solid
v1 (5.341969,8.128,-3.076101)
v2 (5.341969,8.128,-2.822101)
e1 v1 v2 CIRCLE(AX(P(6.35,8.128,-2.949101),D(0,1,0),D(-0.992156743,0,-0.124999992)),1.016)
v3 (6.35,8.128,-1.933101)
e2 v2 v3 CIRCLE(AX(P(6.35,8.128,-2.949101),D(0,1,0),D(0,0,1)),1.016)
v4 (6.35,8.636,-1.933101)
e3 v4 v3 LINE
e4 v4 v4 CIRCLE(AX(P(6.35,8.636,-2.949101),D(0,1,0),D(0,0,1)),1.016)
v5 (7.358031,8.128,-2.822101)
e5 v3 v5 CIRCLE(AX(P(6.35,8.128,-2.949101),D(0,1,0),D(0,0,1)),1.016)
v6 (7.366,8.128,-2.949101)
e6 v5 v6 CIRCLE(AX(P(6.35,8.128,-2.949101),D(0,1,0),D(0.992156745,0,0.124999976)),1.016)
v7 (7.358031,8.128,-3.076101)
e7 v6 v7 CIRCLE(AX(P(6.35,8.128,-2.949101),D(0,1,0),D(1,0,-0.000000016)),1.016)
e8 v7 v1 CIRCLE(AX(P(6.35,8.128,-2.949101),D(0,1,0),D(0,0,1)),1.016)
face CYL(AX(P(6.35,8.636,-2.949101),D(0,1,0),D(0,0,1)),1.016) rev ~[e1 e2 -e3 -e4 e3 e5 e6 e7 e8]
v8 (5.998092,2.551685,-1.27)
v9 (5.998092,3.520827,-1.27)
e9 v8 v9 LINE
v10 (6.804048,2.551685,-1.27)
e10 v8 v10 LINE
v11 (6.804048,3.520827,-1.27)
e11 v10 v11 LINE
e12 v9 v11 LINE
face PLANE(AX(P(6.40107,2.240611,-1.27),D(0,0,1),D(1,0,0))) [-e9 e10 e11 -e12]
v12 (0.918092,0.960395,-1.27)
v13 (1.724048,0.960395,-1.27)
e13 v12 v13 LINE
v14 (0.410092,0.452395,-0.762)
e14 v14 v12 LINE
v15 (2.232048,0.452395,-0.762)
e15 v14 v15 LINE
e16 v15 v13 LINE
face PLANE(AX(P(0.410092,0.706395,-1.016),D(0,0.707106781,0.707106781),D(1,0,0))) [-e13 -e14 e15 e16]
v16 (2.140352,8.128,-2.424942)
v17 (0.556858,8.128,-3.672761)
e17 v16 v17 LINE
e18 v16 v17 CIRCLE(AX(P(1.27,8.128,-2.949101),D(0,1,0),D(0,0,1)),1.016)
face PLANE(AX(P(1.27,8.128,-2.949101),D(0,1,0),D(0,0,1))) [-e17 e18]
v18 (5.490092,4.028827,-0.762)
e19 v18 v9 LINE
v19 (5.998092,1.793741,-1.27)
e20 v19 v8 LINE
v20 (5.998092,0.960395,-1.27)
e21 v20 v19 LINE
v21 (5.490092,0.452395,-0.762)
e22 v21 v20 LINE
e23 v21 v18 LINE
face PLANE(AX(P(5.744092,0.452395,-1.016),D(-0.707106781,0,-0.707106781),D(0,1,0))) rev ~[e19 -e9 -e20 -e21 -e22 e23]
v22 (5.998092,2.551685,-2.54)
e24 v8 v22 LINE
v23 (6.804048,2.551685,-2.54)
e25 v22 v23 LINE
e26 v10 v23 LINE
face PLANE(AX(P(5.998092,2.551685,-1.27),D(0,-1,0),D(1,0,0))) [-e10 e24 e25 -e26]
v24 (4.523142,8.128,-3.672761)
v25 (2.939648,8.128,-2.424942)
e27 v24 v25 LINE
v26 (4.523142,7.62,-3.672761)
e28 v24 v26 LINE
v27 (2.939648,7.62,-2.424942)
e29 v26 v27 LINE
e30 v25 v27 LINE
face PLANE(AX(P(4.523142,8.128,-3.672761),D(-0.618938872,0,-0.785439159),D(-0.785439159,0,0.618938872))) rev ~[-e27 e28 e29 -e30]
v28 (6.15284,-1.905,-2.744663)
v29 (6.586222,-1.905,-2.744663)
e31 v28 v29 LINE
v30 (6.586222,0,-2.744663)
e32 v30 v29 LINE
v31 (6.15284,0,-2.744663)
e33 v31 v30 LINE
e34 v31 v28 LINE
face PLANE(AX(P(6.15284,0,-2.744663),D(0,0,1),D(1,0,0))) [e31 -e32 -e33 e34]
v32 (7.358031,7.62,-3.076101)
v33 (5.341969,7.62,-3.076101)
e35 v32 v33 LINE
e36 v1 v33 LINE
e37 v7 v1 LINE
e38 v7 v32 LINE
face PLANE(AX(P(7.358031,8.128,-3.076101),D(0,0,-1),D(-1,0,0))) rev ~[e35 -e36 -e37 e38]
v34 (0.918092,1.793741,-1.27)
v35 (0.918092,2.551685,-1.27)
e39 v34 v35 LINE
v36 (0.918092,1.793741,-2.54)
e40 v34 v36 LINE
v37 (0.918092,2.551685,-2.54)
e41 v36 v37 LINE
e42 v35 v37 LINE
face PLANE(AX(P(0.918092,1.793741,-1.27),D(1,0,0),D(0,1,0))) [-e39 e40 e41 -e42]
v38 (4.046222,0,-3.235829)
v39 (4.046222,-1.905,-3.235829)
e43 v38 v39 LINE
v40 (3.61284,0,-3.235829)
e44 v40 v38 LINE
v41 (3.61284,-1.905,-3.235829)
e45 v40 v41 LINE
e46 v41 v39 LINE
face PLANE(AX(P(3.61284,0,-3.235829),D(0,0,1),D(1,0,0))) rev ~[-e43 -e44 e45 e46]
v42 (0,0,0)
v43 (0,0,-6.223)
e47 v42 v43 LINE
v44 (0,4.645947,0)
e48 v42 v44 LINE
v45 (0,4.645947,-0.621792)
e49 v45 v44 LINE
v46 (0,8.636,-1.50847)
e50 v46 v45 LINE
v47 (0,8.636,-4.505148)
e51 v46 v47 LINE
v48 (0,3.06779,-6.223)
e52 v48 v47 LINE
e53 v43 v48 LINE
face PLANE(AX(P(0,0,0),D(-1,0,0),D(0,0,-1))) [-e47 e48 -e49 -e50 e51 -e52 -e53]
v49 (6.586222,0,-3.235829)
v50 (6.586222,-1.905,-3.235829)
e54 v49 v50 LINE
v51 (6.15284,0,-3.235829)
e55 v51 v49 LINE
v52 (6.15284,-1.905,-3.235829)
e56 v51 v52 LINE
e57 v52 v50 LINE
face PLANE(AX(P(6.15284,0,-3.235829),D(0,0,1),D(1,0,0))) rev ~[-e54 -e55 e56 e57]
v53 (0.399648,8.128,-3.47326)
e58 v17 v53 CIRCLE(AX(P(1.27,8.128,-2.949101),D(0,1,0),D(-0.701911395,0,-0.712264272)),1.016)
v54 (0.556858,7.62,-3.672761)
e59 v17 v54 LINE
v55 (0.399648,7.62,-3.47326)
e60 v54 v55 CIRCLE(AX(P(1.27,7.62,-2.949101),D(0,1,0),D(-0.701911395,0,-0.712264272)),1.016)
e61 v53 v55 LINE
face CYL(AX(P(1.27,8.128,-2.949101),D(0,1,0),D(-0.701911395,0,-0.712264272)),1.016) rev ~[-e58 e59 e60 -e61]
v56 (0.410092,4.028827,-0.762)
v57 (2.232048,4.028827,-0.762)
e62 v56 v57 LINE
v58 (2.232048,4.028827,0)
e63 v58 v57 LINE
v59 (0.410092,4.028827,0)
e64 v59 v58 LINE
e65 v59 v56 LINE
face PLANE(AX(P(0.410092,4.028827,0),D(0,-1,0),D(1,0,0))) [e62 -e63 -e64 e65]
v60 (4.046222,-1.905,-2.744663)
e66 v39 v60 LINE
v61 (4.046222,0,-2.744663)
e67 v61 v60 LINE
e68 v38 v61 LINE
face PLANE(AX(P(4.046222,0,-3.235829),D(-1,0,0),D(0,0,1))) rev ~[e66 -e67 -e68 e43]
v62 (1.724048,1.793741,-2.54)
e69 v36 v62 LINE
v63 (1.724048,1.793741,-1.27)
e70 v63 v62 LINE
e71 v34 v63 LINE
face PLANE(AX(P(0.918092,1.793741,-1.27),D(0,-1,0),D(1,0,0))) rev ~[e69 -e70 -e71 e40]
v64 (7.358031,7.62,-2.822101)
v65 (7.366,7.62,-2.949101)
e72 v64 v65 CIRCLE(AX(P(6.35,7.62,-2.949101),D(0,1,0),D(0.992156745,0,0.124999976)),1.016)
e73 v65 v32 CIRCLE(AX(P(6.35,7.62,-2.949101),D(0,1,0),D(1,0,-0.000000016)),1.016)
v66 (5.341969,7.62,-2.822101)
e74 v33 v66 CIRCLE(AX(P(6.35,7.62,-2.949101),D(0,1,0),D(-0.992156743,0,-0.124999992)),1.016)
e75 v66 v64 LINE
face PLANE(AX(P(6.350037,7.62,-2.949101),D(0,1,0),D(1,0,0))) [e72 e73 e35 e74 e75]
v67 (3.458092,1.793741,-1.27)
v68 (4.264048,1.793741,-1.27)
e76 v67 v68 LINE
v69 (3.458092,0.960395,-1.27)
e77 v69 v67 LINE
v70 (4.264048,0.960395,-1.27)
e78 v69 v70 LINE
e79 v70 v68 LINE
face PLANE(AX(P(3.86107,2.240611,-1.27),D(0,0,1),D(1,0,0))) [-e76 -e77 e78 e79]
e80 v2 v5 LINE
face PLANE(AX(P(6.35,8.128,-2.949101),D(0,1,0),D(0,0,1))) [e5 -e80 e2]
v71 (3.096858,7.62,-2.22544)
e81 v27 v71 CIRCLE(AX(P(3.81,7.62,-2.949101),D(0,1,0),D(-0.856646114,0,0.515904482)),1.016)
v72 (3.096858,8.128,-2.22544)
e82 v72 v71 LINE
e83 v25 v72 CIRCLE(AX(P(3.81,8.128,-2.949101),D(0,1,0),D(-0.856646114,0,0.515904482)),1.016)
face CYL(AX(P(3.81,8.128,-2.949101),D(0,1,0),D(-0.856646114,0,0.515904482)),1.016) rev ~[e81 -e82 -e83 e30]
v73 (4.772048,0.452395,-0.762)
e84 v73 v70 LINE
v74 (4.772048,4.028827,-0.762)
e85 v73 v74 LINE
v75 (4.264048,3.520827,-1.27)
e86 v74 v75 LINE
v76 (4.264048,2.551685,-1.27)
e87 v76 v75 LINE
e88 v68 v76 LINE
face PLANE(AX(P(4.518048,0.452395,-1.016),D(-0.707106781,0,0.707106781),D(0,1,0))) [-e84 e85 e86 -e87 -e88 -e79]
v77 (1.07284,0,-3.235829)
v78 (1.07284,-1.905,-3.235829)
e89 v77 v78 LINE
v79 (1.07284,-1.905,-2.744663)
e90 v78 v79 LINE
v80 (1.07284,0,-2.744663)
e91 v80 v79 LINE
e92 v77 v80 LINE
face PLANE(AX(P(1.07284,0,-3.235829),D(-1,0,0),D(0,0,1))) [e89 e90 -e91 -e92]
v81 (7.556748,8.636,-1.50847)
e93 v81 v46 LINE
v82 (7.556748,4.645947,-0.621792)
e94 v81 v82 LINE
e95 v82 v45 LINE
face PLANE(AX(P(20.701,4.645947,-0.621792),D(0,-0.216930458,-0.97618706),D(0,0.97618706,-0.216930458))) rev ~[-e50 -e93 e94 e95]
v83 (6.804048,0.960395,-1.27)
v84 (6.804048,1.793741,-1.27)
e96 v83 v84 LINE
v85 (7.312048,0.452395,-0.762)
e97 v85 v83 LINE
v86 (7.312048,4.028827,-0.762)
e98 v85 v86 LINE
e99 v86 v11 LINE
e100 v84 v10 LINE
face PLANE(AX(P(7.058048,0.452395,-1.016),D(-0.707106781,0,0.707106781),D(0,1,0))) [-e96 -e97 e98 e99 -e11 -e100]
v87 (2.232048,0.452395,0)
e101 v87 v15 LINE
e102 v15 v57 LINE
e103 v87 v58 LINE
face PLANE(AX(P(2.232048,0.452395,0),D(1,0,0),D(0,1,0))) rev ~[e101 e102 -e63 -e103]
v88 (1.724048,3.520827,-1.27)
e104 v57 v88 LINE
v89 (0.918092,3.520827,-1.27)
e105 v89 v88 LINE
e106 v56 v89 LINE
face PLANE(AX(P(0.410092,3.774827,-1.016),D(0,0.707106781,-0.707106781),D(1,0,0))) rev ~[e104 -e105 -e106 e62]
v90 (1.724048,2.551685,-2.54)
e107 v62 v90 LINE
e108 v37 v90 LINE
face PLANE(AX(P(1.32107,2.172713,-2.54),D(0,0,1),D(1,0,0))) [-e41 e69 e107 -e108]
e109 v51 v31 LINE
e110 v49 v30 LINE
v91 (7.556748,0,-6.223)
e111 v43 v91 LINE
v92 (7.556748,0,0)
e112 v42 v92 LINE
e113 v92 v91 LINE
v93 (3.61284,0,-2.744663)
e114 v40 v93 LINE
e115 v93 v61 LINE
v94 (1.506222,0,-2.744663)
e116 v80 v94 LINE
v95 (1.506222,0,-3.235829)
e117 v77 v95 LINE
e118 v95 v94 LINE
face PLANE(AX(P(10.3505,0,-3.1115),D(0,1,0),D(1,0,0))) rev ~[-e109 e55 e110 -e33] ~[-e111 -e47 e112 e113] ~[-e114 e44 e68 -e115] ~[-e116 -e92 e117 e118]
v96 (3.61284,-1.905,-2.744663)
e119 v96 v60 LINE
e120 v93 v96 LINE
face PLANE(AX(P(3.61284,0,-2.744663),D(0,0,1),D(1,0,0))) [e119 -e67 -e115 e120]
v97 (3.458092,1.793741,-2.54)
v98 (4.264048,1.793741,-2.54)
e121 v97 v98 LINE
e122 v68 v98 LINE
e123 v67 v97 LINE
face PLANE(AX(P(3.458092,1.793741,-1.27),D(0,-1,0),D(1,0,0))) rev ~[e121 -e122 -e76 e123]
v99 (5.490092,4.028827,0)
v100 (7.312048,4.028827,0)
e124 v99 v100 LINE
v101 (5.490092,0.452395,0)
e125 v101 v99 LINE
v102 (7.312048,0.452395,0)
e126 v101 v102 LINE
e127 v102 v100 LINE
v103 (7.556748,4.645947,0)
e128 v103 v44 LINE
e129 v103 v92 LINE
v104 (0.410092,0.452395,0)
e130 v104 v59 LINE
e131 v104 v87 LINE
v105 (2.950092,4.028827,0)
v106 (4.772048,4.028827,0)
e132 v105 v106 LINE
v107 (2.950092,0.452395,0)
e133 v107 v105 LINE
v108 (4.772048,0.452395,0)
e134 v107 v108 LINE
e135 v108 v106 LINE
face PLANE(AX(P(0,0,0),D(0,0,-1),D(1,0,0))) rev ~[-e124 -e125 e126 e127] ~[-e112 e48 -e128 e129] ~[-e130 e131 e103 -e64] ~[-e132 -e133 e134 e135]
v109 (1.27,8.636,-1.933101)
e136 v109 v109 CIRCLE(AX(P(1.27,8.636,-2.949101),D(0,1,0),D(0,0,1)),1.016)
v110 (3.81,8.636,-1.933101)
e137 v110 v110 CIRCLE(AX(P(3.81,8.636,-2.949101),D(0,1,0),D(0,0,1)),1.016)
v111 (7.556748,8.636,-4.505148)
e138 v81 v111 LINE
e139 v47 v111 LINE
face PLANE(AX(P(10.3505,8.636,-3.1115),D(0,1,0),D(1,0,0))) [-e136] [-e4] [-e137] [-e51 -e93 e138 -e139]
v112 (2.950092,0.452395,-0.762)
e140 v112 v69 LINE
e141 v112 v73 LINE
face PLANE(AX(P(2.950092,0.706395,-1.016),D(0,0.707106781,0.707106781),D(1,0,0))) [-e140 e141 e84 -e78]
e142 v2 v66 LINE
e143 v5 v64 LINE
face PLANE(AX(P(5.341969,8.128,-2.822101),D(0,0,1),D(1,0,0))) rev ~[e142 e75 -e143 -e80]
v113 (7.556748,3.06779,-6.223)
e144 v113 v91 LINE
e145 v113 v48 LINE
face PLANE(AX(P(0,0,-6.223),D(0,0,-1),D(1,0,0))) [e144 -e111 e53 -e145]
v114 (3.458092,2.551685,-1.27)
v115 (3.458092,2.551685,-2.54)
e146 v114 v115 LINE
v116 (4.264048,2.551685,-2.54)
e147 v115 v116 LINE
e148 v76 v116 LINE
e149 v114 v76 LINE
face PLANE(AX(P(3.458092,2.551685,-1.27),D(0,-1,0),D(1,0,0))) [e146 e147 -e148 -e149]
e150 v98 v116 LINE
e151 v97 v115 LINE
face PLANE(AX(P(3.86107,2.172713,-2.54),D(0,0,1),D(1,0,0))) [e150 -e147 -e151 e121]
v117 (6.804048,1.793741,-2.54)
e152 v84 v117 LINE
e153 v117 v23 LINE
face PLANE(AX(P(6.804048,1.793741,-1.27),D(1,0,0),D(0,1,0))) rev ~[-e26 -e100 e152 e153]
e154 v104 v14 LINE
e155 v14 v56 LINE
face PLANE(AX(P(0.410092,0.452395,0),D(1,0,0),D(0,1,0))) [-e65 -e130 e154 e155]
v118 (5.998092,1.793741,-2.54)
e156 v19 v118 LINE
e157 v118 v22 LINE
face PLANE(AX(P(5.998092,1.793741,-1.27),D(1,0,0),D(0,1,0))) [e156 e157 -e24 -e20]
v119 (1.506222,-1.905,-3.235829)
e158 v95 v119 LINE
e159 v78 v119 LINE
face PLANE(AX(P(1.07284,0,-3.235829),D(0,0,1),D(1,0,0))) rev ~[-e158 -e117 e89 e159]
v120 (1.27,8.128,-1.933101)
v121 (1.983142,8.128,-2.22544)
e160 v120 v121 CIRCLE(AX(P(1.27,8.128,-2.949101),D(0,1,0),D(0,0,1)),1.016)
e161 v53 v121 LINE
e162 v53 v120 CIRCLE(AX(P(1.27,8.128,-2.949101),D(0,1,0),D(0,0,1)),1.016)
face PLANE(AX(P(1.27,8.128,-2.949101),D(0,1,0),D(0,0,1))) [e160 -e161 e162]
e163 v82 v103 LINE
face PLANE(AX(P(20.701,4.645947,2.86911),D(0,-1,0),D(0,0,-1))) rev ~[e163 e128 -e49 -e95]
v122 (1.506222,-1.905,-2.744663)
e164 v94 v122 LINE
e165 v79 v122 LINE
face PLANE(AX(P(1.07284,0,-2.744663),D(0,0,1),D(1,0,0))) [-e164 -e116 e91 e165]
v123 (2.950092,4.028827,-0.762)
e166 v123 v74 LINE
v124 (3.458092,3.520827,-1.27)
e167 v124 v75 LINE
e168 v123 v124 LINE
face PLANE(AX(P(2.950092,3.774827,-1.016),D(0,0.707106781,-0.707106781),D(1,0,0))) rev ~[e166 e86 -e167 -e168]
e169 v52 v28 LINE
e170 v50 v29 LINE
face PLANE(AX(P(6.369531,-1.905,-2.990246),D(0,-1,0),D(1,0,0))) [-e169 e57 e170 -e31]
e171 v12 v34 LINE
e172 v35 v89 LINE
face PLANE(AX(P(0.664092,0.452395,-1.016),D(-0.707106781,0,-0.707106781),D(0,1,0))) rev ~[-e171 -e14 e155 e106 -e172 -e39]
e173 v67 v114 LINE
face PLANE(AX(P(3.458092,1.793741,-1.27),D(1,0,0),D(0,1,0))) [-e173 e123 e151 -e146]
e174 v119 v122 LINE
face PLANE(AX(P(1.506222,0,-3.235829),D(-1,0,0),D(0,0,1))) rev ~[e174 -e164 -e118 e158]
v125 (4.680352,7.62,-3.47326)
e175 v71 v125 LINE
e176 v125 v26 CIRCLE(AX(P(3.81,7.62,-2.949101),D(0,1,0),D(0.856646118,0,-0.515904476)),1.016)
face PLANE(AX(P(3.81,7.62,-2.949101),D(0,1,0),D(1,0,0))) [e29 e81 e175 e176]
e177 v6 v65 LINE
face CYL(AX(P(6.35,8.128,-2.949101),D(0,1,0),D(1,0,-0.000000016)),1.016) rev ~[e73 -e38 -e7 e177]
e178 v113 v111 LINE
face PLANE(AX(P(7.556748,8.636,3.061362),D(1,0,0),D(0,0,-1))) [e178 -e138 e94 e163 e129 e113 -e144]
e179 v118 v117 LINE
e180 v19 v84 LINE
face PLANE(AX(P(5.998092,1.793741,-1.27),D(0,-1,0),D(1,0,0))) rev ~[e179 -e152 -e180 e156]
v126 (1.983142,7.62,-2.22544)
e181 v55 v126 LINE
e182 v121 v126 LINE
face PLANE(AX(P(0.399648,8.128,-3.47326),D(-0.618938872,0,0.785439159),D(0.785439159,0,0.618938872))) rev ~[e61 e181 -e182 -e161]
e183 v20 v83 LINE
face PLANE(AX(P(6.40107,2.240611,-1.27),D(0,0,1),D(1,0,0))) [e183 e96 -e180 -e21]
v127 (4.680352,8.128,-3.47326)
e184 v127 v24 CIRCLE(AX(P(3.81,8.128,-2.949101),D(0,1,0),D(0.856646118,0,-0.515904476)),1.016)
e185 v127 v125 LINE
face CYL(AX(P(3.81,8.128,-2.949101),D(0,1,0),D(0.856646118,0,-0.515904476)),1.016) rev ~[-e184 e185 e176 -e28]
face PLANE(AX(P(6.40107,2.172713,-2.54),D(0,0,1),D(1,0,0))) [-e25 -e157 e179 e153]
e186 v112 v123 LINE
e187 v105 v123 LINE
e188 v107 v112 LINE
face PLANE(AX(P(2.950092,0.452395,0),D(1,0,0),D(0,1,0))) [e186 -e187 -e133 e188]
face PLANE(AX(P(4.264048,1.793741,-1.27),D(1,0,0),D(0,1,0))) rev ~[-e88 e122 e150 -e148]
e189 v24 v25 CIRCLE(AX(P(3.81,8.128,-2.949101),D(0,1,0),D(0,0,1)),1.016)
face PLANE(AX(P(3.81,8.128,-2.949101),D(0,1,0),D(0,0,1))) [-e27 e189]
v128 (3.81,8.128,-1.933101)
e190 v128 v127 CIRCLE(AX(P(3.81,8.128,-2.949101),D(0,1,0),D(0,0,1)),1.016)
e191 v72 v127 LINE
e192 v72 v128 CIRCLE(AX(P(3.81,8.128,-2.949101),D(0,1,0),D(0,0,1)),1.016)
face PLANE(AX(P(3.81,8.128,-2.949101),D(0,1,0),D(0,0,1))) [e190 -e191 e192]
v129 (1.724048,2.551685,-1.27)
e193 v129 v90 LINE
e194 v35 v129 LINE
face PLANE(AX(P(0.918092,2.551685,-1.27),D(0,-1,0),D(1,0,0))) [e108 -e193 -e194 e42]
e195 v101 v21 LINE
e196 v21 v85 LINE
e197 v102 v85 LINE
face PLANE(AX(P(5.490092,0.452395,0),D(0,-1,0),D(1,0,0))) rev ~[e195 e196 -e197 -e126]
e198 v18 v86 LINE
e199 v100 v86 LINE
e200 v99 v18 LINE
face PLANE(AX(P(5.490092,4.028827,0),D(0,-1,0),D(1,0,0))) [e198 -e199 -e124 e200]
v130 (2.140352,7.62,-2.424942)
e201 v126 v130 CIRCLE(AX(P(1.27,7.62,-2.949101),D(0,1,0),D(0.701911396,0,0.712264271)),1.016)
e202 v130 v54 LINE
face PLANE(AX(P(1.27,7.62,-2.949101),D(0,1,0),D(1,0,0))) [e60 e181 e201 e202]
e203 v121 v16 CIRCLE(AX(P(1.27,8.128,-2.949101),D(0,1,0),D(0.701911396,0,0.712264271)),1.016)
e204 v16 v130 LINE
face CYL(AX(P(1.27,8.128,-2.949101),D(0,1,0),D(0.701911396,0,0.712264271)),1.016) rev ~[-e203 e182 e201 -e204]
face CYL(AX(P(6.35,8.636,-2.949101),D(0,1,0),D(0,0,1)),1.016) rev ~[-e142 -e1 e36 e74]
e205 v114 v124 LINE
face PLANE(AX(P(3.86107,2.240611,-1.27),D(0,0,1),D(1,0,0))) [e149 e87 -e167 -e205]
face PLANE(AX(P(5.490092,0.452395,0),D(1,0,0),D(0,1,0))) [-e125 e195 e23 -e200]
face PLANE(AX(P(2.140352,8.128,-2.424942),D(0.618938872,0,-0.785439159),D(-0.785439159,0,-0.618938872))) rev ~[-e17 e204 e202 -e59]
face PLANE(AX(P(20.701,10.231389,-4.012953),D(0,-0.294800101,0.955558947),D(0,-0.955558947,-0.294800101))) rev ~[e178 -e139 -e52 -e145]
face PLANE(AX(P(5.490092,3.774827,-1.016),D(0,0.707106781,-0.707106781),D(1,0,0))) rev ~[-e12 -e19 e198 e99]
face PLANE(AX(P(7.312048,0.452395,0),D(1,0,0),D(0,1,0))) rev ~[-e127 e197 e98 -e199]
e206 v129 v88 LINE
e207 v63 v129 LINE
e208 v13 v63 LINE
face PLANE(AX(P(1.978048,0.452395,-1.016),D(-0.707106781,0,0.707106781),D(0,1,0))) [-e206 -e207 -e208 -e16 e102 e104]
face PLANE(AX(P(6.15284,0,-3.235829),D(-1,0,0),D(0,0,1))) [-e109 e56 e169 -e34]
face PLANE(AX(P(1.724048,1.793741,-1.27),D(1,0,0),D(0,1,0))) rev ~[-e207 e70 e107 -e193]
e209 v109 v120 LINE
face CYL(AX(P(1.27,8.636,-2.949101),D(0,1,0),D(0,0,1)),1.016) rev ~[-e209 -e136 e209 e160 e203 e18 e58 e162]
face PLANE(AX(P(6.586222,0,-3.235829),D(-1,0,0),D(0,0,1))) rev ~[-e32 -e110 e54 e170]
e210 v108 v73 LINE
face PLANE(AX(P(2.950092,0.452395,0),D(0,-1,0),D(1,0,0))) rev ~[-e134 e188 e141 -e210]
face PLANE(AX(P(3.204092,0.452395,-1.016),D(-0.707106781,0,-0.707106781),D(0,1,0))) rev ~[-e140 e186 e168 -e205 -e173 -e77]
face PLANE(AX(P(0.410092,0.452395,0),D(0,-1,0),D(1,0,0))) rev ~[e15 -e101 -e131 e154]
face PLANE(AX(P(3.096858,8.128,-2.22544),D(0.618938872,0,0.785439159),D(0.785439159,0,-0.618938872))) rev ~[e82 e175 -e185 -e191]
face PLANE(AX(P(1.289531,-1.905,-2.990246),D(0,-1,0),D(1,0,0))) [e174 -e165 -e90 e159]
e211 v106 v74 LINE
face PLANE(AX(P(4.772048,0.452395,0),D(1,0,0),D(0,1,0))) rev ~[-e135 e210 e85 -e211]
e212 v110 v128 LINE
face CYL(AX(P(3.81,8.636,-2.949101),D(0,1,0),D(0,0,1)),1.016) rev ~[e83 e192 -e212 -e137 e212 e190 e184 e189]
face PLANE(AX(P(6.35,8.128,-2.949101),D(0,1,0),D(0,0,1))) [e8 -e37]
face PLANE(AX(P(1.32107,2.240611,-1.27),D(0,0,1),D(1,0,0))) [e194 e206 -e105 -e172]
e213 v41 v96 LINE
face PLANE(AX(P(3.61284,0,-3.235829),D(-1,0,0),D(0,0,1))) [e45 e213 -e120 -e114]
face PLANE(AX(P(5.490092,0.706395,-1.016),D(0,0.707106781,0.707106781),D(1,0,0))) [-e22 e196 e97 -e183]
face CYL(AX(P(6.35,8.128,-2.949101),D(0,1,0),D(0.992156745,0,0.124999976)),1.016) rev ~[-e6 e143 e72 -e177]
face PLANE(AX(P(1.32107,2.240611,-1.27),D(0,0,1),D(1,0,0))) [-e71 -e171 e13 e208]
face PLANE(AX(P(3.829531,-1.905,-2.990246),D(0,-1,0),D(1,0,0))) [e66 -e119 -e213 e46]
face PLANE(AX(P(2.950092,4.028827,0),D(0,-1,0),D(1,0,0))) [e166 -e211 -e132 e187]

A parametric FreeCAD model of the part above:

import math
import FreeCAD as App
import Part
import Sketcher

V = App.Vector
Q = App.Units.Quantity


def edges_at(feature, points):
    """Names of the edges that pass closest to the given points."""
    edges = feature.Shape.Edges
    near = lambda p: min(range(len(edges)), key=lambda i: edges[i].distToShape(Part.Vertex(*p))[0])
    return sorted({f"Edge{near(p) + 1}" for p in points})


def add_polygon(sketch, points):
    """Adds a closed chain of lines whose ends are joined by coincident constraints."""
    first, n = sketch.GeometryCount, len(points)
    for a, b in zip(points, points[1:] + points[:1]):
        sketch.addGeometry(Part.LineSegment(App.Vector(*a, 0), App.Vector(*b, 0)), False)
    for i in range(n):
        sketch.addConstraint(Sketcher.Constraint("Coincident", first + i, 2, first + (i + 1) % n, 1))

doc = App.newDocument("Part")
body = doc.addObject("PartDesign::Body", "Body")

# Sketch on XZ plane
sketch1 = body.newObject("Sketcher::SketchObject", "Sketch")
sketch1.AttachmentSupport = (doc.getObject("XZ_Plane"), [""])
sketch1.MapMode = "FlatFace"
add_polygon(sketch1, [(0, -6), (0, 0), (21, 0), (21, -6)])  # lines 0-3
sketch1.addConstraint([
    Sketcher.Constraint("Vertical", 0),
    Sketcher.Constraint("Horizontal", 1),
    Sketcher.Constraint("Vertical", 2),
    Sketcher.Constraint("Horizontal", 3),
    Sketcher.Constraint("Coincident", 0, 2, -1, 1),
    Sketcher.Constraint("DistanceX", 1, 1, 1, 2, Q("0.815 in")),
    Sketcher.Constraint("DistanceY", 0, 1, 0, 2, Q("0.245 in")),
])
pad1 = body.newObject("PartDesign::Pad", "Pad")
pad1.Profile = sketch1
pad1.Length = Q("0.34 in")
pad1.Reversed = True

# Sketch on YZ plane
sketch2 = body.newObject("Sketcher::SketchObject", "Sketch001")
sketch2.AttachmentSupport = (doc.getObject("YZ_Plane"), [""])
sketch2.MapMode = "FlatFace"
sketch2.AttachmentOffset = App.Placement(V(0, 0, 0.815 * 25.4), App.Rotation())
add_polygon(sketch2, [(4.6, 2.9), (4.6, -0.6), (11.8, -2.2), (11.8, 2.9)])  # lines 0-3
sketch2.addConstraint([
    Sketcher.Constraint("Vertical", 0),
    Sketcher.Constraint("Vertical", 2),
    Sketcher.Constraint("Horizontal", 3),
    Sketcher.Constraint("DistanceY", 0, 2, 0, 1, 3.490902),
    Sketcher.Constraint("DistanceX", 3, 2, 3, 1, 7.181283),
    Sketcher.Constraint("DistanceY", 2, 1, 2, 2, 5.086742),
    Sketcher.Constraint("DistanceY", 0, 2, -1, 1, 0.621792),
    Sketcher.Constraint("DistanceX", -1, 1, 1, 2, 11.82723),
])
pocket1 = body.newObject("PartDesign::Pocket", "Pocket")
pocket1.Profile = sketch2
pocket1.Length = Q("1 in")

# Sketch on YZ plane
sketch3 = body.newObject("Sketcher::SketchObject", "Sketch002")
sketch3.AttachmentSupport = (doc.getObject("YZ_Plane"), [""])
sketch3.MapMode = "FlatFace"
sketch3.AttachmentOffset = App.Placement(V(0, 0, 0.815 * 25.4), App.Rotation())
add_polygon(sketch3, [(10.2, -4), (0.9, -6.9), (0.9, -9.2), (10.2, -9.2)])  # lines 0-3
sketch3.addConstraint([
    Sketcher.Constraint("Vertical", 1),
    Sketcher.Constraint("Horizontal", 2),
    Sketcher.Constraint("Vertical", 3),
    Sketcher.Constraint("DistanceY", 1, 2, 1, 1, 2.294021),
    Sketcher.Constraint("DistanceX", 2, 1, 2, 2, 9.375565),
    Sketcher.Constraint("DistanceY", 3, 1, 3, 2, 5.186483),
    Sketcher.Constraint("DistanceX", -1, 1, 2, 2, 10.231389),
    Sketcher.Constraint("DistanceY", 0, 2, -1, 1, 6.905415),
])
pocket2 = body.newObject("PartDesign::Pocket", "Pocket001")
pocket2.Profile = sketch3
pocket2.Length = Q("1 in")

# Sketch on XZ plane
sketch4 = body.newObject("Sketcher::SketchObject", "Sketch003")
sketch4.AttachmentSupport = (doc.getObject("XZ_Plane"), [""])
sketch4.MapMode = "FlatFace"
sketch4.AttachmentOffset = App.Placement(V(0, 0, -0.34 * 25.4), App.Rotation())
sketch4.addGeometry([
    Part.Circle(V(1.3, -2.9, 0), V(0, 0, 1), 1),  # 0
    Part.Circle(V(3.8, -2.9, 0), V(0, 0, 1), 1),  # 1
    Part.Circle(V(6.3, -2.9, 0), V(0, 0, 1), 1),  # 2
    Part.Circle(V(8.9, -2.9, 0), V(0, 0, 1), 1),  # 3
    Part.Circle(V(11.4, -2.9, 0), V(0, 0, 1), 1),  # 4
    Part.Circle(V(14, -2.9, 0), V(0, 0, 1), 1),  # 5
    Part.Circle(V(16.5, -2.9, 0), V(0, 0, 1), 1),  # 6
    Part.Circle(V(19.1, -2.9, 0), V(0, 0, 1), 1),  # 7
], False)
sketch4.addConstraint([
    Sketcher.Constraint("Equal", 0, 1),
    Sketcher.Constraint("Equal", 1, 2),
    Sketcher.Constraint("Equal", 2, 3),
    Sketcher.Constraint("Equal", 3, 4),
    Sketcher.Constraint("Equal", 4, 5),
    Sketcher.Constraint("Equal", 5, 6),
    Sketcher.Constraint("Equal", 6, 7),
    Sketcher.Constraint("Horizontal", 0, 3, 1, 3),
    Sketcher.Constraint("Horizontal", 1, 3, 2, 3),
    Sketcher.Constraint("Horizontal", 2, 3, 3, 3),
    Sketcher.Constraint("Horizontal", 3, 3, 4, 3),
    Sketcher.Constraint("Horizontal", 4, 3, 5, 3),
    Sketcher.Constraint("Horizontal", 5, 3, 6, 3),
    Sketcher.Constraint("Horizontal", 6, 3, 7, 3),
    Sketcher.Constraint("Diameter", 0, Q("0.08 in")),
    Sketcher.Constraint("DistanceX", 0, 3, 1, 3, Q("0.1 in")),
    Sketcher.Constraint("DistanceX", 1, 3, 2, 3, Q("0.1 in")),
    Sketcher.Constraint("DistanceX", 2, 3, 3, 3, Q("0.1 in")),
    Sketcher.Constraint("DistanceX", 3, 3, 4, 3, Q("0.1 in")),
    Sketcher.Constraint("DistanceX", 4, 3, 5, 3, Q("0.1 in")),
    Sketcher.Constraint("DistanceX", 5, 3, 6, 3, Q("0.1 in")),
    Sketcher.Constraint("DistanceX", 6, 3, 7, 3, Q("0.1 in")),
    Sketcher.Constraint("DistanceX", -1, 1, 0, 3, Q("0.05 in")),
    Sketcher.Constraint("DistanceY", 0, 3, -1, 1, 2.949101),
])
pocket3 = body.newObject("PartDesign::Pocket", "Pocket002")
pocket3.Profile = sketch4
pocket3.Length = Q("0.02 in")
pocket3.Reversed = True

# Sketch on XZ plane
sketch5 = body.newObject("Sketcher::SketchObject", "Sketch004")
sketch5.AttachmentSupport = (doc.getObject("XZ_Plane"), [""])
sketch5.MapMode = "FlatFace"
sketch5.AttachmentOffset = App.Placement(V(0, 0, -0.32 * 25.4), App.Rotation())
sketch5.addGeometry([
    Part.ArcOfCircle(Part.Circle(V(1.27, -2.95, 0), V(0, 0, 1), 1.02), math.radians(-148.94), math.radians(-134.58)),  # 0
    Part.LineSegment(V(0.4, -3.47, 0), V(1.98, -2.23, 0)),  # 1
    Part.ArcOfCircle(Part.Circle(V(1.27, -2.95, 0), V(0, 0, 1), 1.02), math.radians(31.06), math.radians(45.42)),  # 2
    Part.LineSegment(V(2.14, -2.42, 0), V(0.56, -3.67, 0)),  # 3
    Part.ArcOfCircle(Part.Circle(V(3.81, -2.95, 0), V(0, 0, 1), 1.02), math.radians(134.58), math.radians(148.94)),  # 4
    Part.LineSegment(V(3.1, -2.23, 0), V(4.68, -3.47, 0)),  # 5
    Part.ArcOfCircle(Part.Circle(V(3.81, -2.95, 0), V(0, 0, 1), 1.02), math.radians(-45.42), math.radians(-31.06)),  # 6
    Part.LineSegment(V(4.52, -3.67, 0), V(2.94, -2.42, 0)),  # 7
    Part.ArcOfCircle(Part.Circle(V(6.35, -2.95, 0), V(0, 0, 1), 1.02), math.radians(172.82), math.radians(187.18)),  # 8
    Part.LineSegment(V(5.34, -2.82, 0), V(7.36, -2.82, 0)),  # 9
    Part.ArcOfCircle(Part.Circle(V(6.35, -2.95, 0), V(0, 0, 1), 1.02), math.radians(0), math.radians(7.18)),  # 10
    Part.ArcOfCircle(Part.Circle(V(6.35, -2.95, 0), V(0, 0, 1), 1.02), math.radians(-7.18), math.radians(0)),  # 11
    Part.LineSegment(V(7.36, -3.08, 0), V(5.34, -3.08, 0)),  # 12
    Part.ArcOfCircle(Part.Circle(V(8.89, -2.95, 0), V(0, 0, 1), 1), math.radians(100.91), math.radians(115.43)),  # 13
    Part.LineSegment(V(8.7, -1.96, 0), V(9.32, -3.86, 0)),  # 14
    Part.ArcOfCircle(Part.Circle(V(8.89, -2.95, 0), V(0, 0, 1), 1), math.radians(-79.09), math.radians(-64.57)),  # 15
    Part.LineSegment(V(9.08, -3.94, 0), V(8.46, -2.04, 0)),  # 16
    Part.ArcOfCircle(Part.Circle(V(11.43, -2.95, 0), V(0, 0, 1), 1.02), math.radians(-97.18), math.radians(-82.82)),  # 17
    Part.LineSegment(V(11.3, -3.96, 0), V(11.3, -1.94, 0)),  # 18
    Part.ArcOfCircle(Part.Circle(V(11.43, -2.95, 0), V(0, 0, 1), 1.02), math.radians(82.82), math.radians(97.18)),  # 19
    Part.LineSegment(V(11.56, -1.94, 0), V(11.56, -3.96, 0)),  # 20
    Part.ArcOfCircle(Part.Circle(V(13.97, -2.95, 0), V(0, 0, 1), 1.02), math.radians(-167.86), math.radians(-153.5)),  # 21
    Part.LineSegment(V(12.98, -3.16, 0), V(14.88, -2.5, 0)),  # 22
    Part.ArcOfCircle(Part.Circle(V(13.97, -2.95, 0), V(0, 0, 1), 1.02), math.radians(12.14), math.radians(26.5)),  # 23
    Part.LineSegment(V(14.96, -2.74, 0), V(13.06, -3.4, 0)),  # 24
    Part.ArcOfCircle(Part.Circle(V(16.51, -2.95, 0), V(0, 0, 1), 1.02), math.radians(-79.02), math.radians(-64.65)),  # 25
    Part.LineSegment(V(16.7, -3.95, 0), V(16.08, -2.03, 0)),  # 26
    Part.ArcOfCircle(Part.Circle(V(16.51, -2.95, 0), V(0, 0, 1), 1.02), math.radians(100.98), math.radians(115.35)),  # 27
    Part.LineSegment(V(16.32, -1.95, 0), V(16.94, -3.87, 0)),  # 28
    Part.ArcOfCircle(Part.Circle(V(19.05, -2.95, 0), V(0, 0, 1), 1), math.radians(-149.06), math.radians(-134.46)),  # 29
    Part.LineSegment(V(18.19, -3.46, 0), V(19.75, -2.24, 0)),  # 30
    Part.ArcOfCircle(Part.Circle(V(19.05, -2.95, 0), V(0, 0, 1), 1), math.radians(30.94), math.radians(45.54)),  # 31
    Part.LineSegment(V(19.91, -2.44, 0), V(18.35, -3.66, 0)),  # 32
], False)
sketch5.addConstraint([
    Sketcher.Constraint("Coincident", 0, 1, 1, 1),
    Sketcher.Constraint("Coincident", 1, 2, 2, 2),
    Sketcher.Constraint("Coincident", 2, 1, 3, 1),
    Sketcher.Constraint("Coincident", 3, 2, 0, 2),
    Sketcher.Constraint("Coincident", 4, 1, 5, 1),
    Sketcher.Constraint("Coincident", 5, 2, 6, 2),
    Sketcher.Constraint("Coincident", 6, 1, 7, 1),
    Sketcher.Constraint("Coincident", 7, 2, 4, 2),
    Sketcher.Constraint("Coincident", 8, 1, 9, 1),
    Sketcher.Constraint("Coincident", 9, 2, 10, 2),
    Sketcher.Constraint("Tangent", 10, 1, 11, 2),
    Sketcher.Constraint("Coincident", 11, 1, 12, 1),
    Sketcher.Constraint("Coincident", 12, 2, 8, 2),
    Sketcher.Constraint("Coincident", 13, 1, 14, 1),
    Sketcher.Constraint("Coincident", 14, 2, 15, 2),
    Sketcher.Constraint("Coincident", 15, 1, 16, 1),
    Sketcher.Constraint("Coincident", 16, 2, 13, 2),
    Sketcher.Constraint("Coincident", 17, 1, 18, 1),
    Sketcher.Constraint("Coincident", 18, 2, 19, 2),
    Sketcher.Constraint("Coincident", 19, 1, 20, 1),
    Sketcher.Constraint("Coincident", 20, 2, 17, 2),
    Sketcher.Constraint("Coincident", 21, 1, 22, 1),
    Sketcher.Constraint("Coincident", 22, 2, 23, 2),
    Sketcher.Constraint("Coincident", 23, 1, 24, 1),
    Sketcher.Constraint("Coincident", 24, 2, 21, 2),
    Sketcher.Constraint("Coincident", 25, 1, 26, 1),
    Sketcher.Constraint("Coincident", 26, 2, 27, 2),
    Sketcher.Constraint("Coincident", 27, 1, 28, 1),
    Sketcher.Constraint("Coincident", 28, 2, 25, 2),
    Sketcher.Constraint("Coincident", 29, 1, 30, 1),
    Sketcher.Constraint("Coincident", 30, 2, 31, 2),
    Sketcher.Constraint("Coincident", 31, 1, 32, 1),
    Sketcher.Constraint("Coincident", 32, 2, 29, 2),
    Sketcher.Constraint("Horizontal", 9),
    Sketcher.Constraint("Horizontal", 12),
    Sketcher.Constraint("Vertical", 18),
    Sketcher.Constraint("Vertical", 20),
    Sketcher.Constraint("Coincident", 2, 3, 0, 3),
    Sketcher.Constraint("Coincident", 6, 3, 4, 3),
    Sketcher.Constraint("Coincident", 10, 3, 8, 3),
    Sketcher.Constraint("Coincident", 15, 3, 13, 3),
    Sketcher.Constraint("Coincident", 19, 3, 17, 3),
    Sketcher.Constraint("Coincident", 23, 3, 21, 3),
    Sketcher.Constraint("Coincident", 27, 3, 25, 3),
    Sketcher.Constraint("Coincident", 31, 3, 29, 3),
    Sketcher.Constraint("Equal", 0, 2),
    Sketcher.Constraint("Equal", 2, 4),
    Sketcher.Constraint("Equal", 4, 6),
    Sketcher.Constraint("Equal", 6, 8),
    Sketcher.Constraint("Equal", 8, 10),
    Sketcher.Constraint("Equal", 10, 11),
    Sketcher.Constraint("Equal", 13, 15),
    Sketcher.Constraint("Equal", 11, 17),
    Sketcher.Constraint("Equal", 17, 19),
    Sketcher.Constraint("Equal", 19, 21),
    Sketcher.Constraint("Equal", 21, 23),
    Sketcher.Constraint("Equal", 23, 25),
    Sketcher.Constraint("Equal", 25, 27),
    Sketcher.Constraint("Equal", 29, 31),
    Sketcher.Constraint("Parallel", 1, 3),
    Sketcher.Constraint("Parallel", 5, 7),
    Sketcher.Constraint("Parallel", 14, 16),
    Sketcher.Constraint("Parallel", 22, 24),
    Sketcher.Constraint("Parallel", 16, 26),
    Sketcher.Constraint("Parallel", 26, 28),
    Sketcher.Constraint("Parallel", 3, 30),
    Sketcher.Constraint("Parallel", 30, 32),
    Sketcher.Constraint("Horizontal", 2, 3, 4, 3),
    Sketcher.Constraint("Horizontal", 6, 3, 8, 3),
    Sketcher.Constraint("Horizontal", 11, 3, 13, 3),
    Sketcher.Constraint("Horizontal", 15, 3, 17, 3),
    Sketcher.Constraint("Horizontal", 19, 3, 21, 3),
    Sketcher.Constraint("Horizontal", 23, 3, 25, 3),
    Sketcher.Constraint("Horizontal", 27, 3, 29, 3),
    Sketcher.Constraint("Horizontal", 1, 2, 4, 1),
    Sketcher.Constraint("Horizontal", 0, 1, 5, 2),
    Sketcher.Constraint("Horizontal", 3, 2, 6, 1),
    Sketcher.Constraint("Horizontal", 31, 3, 10, 1),
    Sketcher.Constraint("Horizontal", 18, 2, 19, 1),
    Sketcher.Constraint("Vertical", 9, 2, 11, 1),
    Sketcher.Constraint("Equal", 12, 18),
    Sketcher.Constraint("Equal", 1, 3),
    Sketcher.Constraint("Equal", 14, 16),
    Sketcher.Constraint("Equal", 7, 22),
    Sketcher.Constraint("Equal", 22, 24),
    Sketcher.Constraint("Equal", 24, 26),
    Sketcher.Constraint("Equal", 26, 28),
    Sketcher.Constraint("Equal", 30, 32),
    Sketcher.Constraint("Radius", 0, Q("0.04 in")),
    Sketcher.Constraint("DistanceX", 2, 3, 4, 3, Q("0.1 in")),
    Sketcher.Constraint("DistanceX", 6, 3, 8, 3, Q("0.1 in")),
    Sketcher.Constraint("DistanceX", 8, 3, 13, 3, Q("0.1 in")),
    Sketcher.Constraint("DistanceX", 15, 3, 17, 3, Q("0.1 in")),
    Sketcher.Constraint("DistanceX", 17, 3, 21, 3, Q("0.1 in")),
    Sketcher.Constraint("DistanceX", 21, 3, 25, 3, Q("0.1 in")),
    Sketcher.Constraint("DistanceX", 27, 3, 29, 3, Q("0.1 in")),
    Sketcher.Constraint("DistanceX", -1, 1, 0, 3, Q("0.05 in")),
    Sketcher.Constraint("DistanceY", 11, 1, 9, 2, Q("0.01 in")),
    Sketcher.Constraint("Radius", 29, 0.999629),
    Sketcher.Constraint("Radius", 13, 1.004956),
    Sketcher.Constraint("DistanceY", 0, 3, -1, 1, 2.949101),
    Sketcher.Constraint("DistanceY", 21, 1, -1, 1, 3.162699),
    Sketcher.Constraint("DistanceY", 22, 2, -1, 1, 2.495802),
    Sketcher.Constraint("DistanceX", -1, 1, 25, 1, 16.703601),
    Sketcher.Constraint("DistanceY", 2, 1, 1, 2, 0.199502),
    Sketcher.Constraint("DistanceX", 13, 1, 14, 2, 0.6216),
    Sketcher.Constraint("DistanceY", 31, 1, 30, 2, 0.199502),
])
pocket4 = body.newObject("PartDesign::Pocket", "Pocket003")
pocket4.Profile = sketch5
pocket4.Length = Q("0.02 in")
pocket4.Reversed = True

# Sketch on XY plane
sketch6 = body.newObject("Sketcher::SketchObject", "Sketch005")
sketch6.AttachmentSupport = (doc.getObject("XY_Plane"), [""])
sketch6.MapMode = "FlatFace"
add_polygon(sketch6, [(3, 4), (3, 0.5), (4.8, 0.5), (4.8, 4)])  # lines 0-3
add_polygon(sketch6, [(0.4, 4), (0.4, 0.5), (2.2, 0.5), (2.2, 4)])  # lines 4-7
add_polygon(sketch6, [(5.5, 4), (5.5, 0.5), (7.3, 0.5), (7.3, 4)])  # lines 8-11
add_polygon(sketch6, [(8, 4), (8, 0.5), (9.9, 0.5), (9.9, 4)])  # lines 12-15
add_polygon(sketch6, [(10.6, 4), (10.6, 0.5), (12.4, 0.5), (12.4, 4)])  # lines 16-19
add_polygon(sketch6, [(13.1, 4), (13.1, 0.5), (14.9, 0.5), (14.9, 4)])  # lines 20-23
add_polygon(sketch6, [(15.7, 4), (15.7, 0.5), (17.5, 0.5), (17.5, 4)])  # lines 24-27
add_polygon(sketch6, [(18.2, 4), (18.2, 0.5), (20, 0.5), (20, 4)])  # lines 28-31
sketch6.addConstraint([
    Sketcher.Constraint("Vertical", 0),
    Sketcher.Constraint("Horizontal", 1),
    Sketcher.Constraint("Vertical", 2),
    Sketcher.Constraint("Horizontal", 3),
    Sketcher.Constraint("Vertical", 4),
    Sketcher.Constraint("Horizontal", 5),
    Sketcher.Constraint("Vertical", 6),
    Sketcher.Constraint("Horizontal", 7),
    Sketcher.Constraint("Vertical", 8),
    Sketcher.Constraint("Horizontal", 9),
    Sketcher.Constraint("Vertical", 10),
    Sketcher.Constraint("Horizontal", 11),
    Sketcher.Constraint("Vertical", 12),
    Sketcher.Constraint("Horizontal", 13),
    Sketcher.Constraint("Vertical", 14),
    Sketcher.Constraint("Horizontal", 15),
    Sketcher.Constraint("Vertical", 16),
    Sketcher.Constraint("Horizontal", 17),
    Sketcher.Constraint("Vertical", 18),
    Sketcher.Constraint("Horizontal", 19),
    Sketcher.Constraint("Vertical", 20),
    Sketcher.Constraint("Horizontal", 21),
    Sketcher.Constraint("Vertical", 22),
    Sketcher.Constraint("Horizontal", 23),
    Sketcher.Constraint("Vertical", 24),
    Sketcher.Constraint("Horizontal", 25),
    Sketcher.Constraint("Vertical", 26),
    Sketcher.Constraint("Horizontal", 27),
    Sketcher.Constraint("Vertical", 28),
    Sketcher.Constraint("Horizontal", 29),
    Sketcher.Constraint("Vertical", 30),
    Sketcher.Constraint("Horizontal", 31),
    Sketcher.Constraint("Horizontal", 1, 2, 4, 2),
    Sketcher.Constraint("Horizontal", 3, 2, 6, 2),
    Sketcher.Constraint("Horizontal", 5, 2, 8, 2),
    Sketcher.Constraint("Horizontal", 7, 2, 10, 2),
    Sketcher.Constraint("Horizontal", 9, 2, 12, 2),
    Sketcher.Constraint("Horizontal", 11, 2, 14, 2),
    Sketcher.Constraint("Horizontal", 13, 2, 16, 2),
    Sketcher.Constraint("Horizontal", 15, 2, 18, 2),
    Sketcher.Constraint("Horizontal", 17, 2, 20, 2),
    Sketcher.Constraint("Horizontal", 19, 2, 22, 2),
    Sketcher.Constraint("Horizontal", 21, 2, 24, 2),
    Sketcher.Constraint("Horizontal", 23, 2, 26, 2),
    Sketcher.Constraint("Horizontal", 25, 2, 28, 2),
    Sketcher.Constraint("Horizontal", 27, 2, 30, 2),
    Sketcher.Constraint("Equal", 3, 5),
    Sketcher.Constraint("Equal", 7, 9),
    Sketcher.Constraint("Equal", 11, 13),
    Sketcher.Constraint("Equal", 15, 17),
    Sketcher.Constraint("Equal", 19, 21),
    Sketcher.Constraint("Equal", 23, 25),
    Sketcher.Constraint("Equal", 27, 29),
    Sketcher.Constraint("DistanceX", 4, 2, 0, 2, Q("0.1 in")),
    Sketcher.Constraint("DistanceX", 0, 2, 8, 2, Q("0.1 in")),
    Sketcher.Constraint("DistanceX", 8, 2, 12, 2, Q("0.1 in")),
    Sketcher.Constraint("DistanceX", 12, 2, 16, 2, Q("0.1 in")),
    Sketcher.Constraint("DistanceX", 16, 2, 20, 2, Q("0.1 in")),
    Sketcher.Constraint("DistanceX", 20, 2, 24, 2, Q("0.1 in")),
    Sketcher.Constraint("DistanceX", 24, 2, 28, 2, Q("0.1 in")),
    Sketcher.Constraint("DistanceX", 1, 1, 1, 2, 1.821956),
    Sketcher.Constraint("DistanceY", 0, 2, 0, 1, 3.576432),
    Sketcher.Constraint("DistanceX", -1, 1, 1, 2, 4.772048),
    Sketcher.Constraint("DistanceY", -1, 1, 0, 2, 0.452395),
])
pocket5 = body.newObject("PartDesign::Pocket", "Pocket004")
pocket5.Profile = sketch6
pocket5.Length = Q("0.05 in")
doc.recompute()

chamfer = body.newObject("PartDesign::Chamfer", "Chamfer")
chamfer.Base = (pocket5, edges_at(pocket5, [
    (0.41, 2.241, -1.27),
    (1.321, 4.029, -1.27),
    (2.232, 2.241, -1.27),
    (1.321, 0.452, -1.27),
    (3.861, 4.029, -1.27),
    (4.772, 2.241, -1.27),
    (3.861, 0.452, -1.27),
    (2.95, 2.241, -1.27),
    (6.401, 4.029, -1.27),
    (7.312, 2.241, -1.27),
    (6.401, 0.452, -1.27),
    (5.49, 2.241, -1.27),
    (8.941, 4.029, -1.27),
    (9.852, 2.241, -1.27),
    (8.941, 0.452, -1.27),
    (8.03, 2.241, -1.27),
    (11.481, 4.029, -1.27),
    (12.392, 2.241, -1.27),
    (11.481, 0.452, -1.27),
    (10.57, 2.241, -1.27),
    (14.021, 4.029, -1.27),
    (14.932, 2.241, -1.27),
    (14.021, 0.452, -1.27),
    (13.11, 2.241, -1.27),
    (16.561, 4.029, -1.27),
    (17.472, 2.241, -1.27),
    (16.561, 0.452, -1.27),
    (15.65, 2.241, -1.27),
    (19.101, 4.029, -1.27),
    (20.012, 2.241, -1.27),
    (19.101, 0.452, -1.27),
    (18.19, 2.241, -1.27),
]))
chamfer.Size = Q("0.02 in")

# Sketch on XY plane
sketch7 = body.newObject("Sketcher::SketchObject", "Sketch006")
sketch7.AttachmentSupport = (doc.getObject("XY_Plane"), [""])
sketch7.MapMode = "FlatFace"
sketch7.AttachmentOffset = App.Placement(V(0, 0, -0.05 * 25.4), App.Rotation())
add_polygon(sketch7, [(0.9, 2.6), (0.9, 1.8), (1.7, 1.8), (1.7, 2.6)])  # lines 0-3
add_polygon(sketch7, [(3.5, 2.6), (3.5, 1.8), (4.3, 1.8), (4.3, 2.6)])  # lines 4-7
add_polygon(sketch7, [(6, 2.6), (6, 1.8), (6.8, 1.8), (6.8, 2.6)])  # lines 8-11
add_polygon(sketch7, [(8.5, 2.6), (8.5, 1.8), (9.3, 1.8), (9.3, 2.6)])  # lines 12-15
add_polygon(sketch7, [(11.1, 2.6), (11.1, 1.8), (11.9, 1.8), (11.9, 2.6)])  # lines 16-19
add_polygon(sketch7, [(13.6, 2.6), (13.6, 1.8), (14.4, 1.8), (14.4, 2.6)])  # lines 20-23
add_polygon(sketch7, [(16.2, 2.6), (16.2, 1.8), (17, 1.8), (17, 2.6)])  # lines 24-27
add_polygon(sketch7, [(18.7, 2.6), (18.7, 1.8), (19.5, 1.8), (19.5, 2.6)])  # lines 28-31
sketch7.addConstraint([
    Sketcher.Constraint("Vertical", 0),
    Sketcher.Constraint("Horizontal", 1),
    Sketcher.Constraint("Vertical", 2),
    Sketcher.Constraint("Horizontal", 3),
    Sketcher.Constraint("Vertical", 4),
    Sketcher.Constraint("Horizontal", 5),
    Sketcher.Constraint("Vertical", 6),
    Sketcher.Constraint("Horizontal", 7),
    Sketcher.Constraint("Vertical", 8),
    Sketcher.Constraint("Horizontal", 9),
    Sketcher.Constraint("Vertical", 10),
    Sketcher.Constraint("Horizontal", 11),
    Sketcher.Constraint("Vertical", 12),
    Sketcher.Constraint("Horizontal", 13),
    Sketcher.Constraint("Vertical", 14),
    Sketcher.Constraint("Horizontal", 15),
    Sketcher.Constraint("Vertical", 16),
    Sketcher.Constraint("Horizontal", 17),
    Sketcher.Constraint("Vertical", 18),
    Sketcher.Constraint("Horizontal", 19),
    Sketcher.Constraint("Vertical", 20),
    Sketcher.Constraint("Horizontal", 21),
    Sketcher.Constraint("Vertical", 22),
    Sketcher.Constraint("Horizontal", 23),
    Sketcher.Constraint("Vertical", 24),
    Sketcher.Constraint("Horizontal", 25),
    Sketcher.Constraint("Vertical", 26),
    Sketcher.Constraint("Horizontal", 27),
    Sketcher.Constraint("Vertical", 28),
    Sketcher.Constraint("Horizontal", 29),
    Sketcher.Constraint("Vertical", 30),
    Sketcher.Constraint("Horizontal", 31),
    Sketcher.Constraint("Horizontal", 1, 2, 4, 2),
    Sketcher.Constraint("Horizontal", 3, 2, 6, 2),
    Sketcher.Constraint("Horizontal", 5, 2, 8, 2),
    Sketcher.Constraint("Horizontal", 7, 2, 10, 2),
    Sketcher.Constraint("Horizontal", 9, 2, 12, 2),
    Sketcher.Constraint("Horizontal", 11, 2, 14, 2),
    Sketcher.Constraint("Horizontal", 13, 2, 16, 2),
    Sketcher.Constraint("Horizontal", 15, 2, 18, 2),
    Sketcher.Constraint("Horizontal", 17, 2, 20, 2),
    Sketcher.Constraint("Horizontal", 19, 2, 22, 2),
    Sketcher.Constraint("Horizontal", 21, 2, 24, 2),
    Sketcher.Constraint("Horizontal", 23, 2, 26, 2),
    Sketcher.Constraint("Horizontal", 25, 2, 28, 2),
    Sketcher.Constraint("Horizontal", 27, 2, 30, 2),
    Sketcher.Constraint("Equal", 3, 5),
    Sketcher.Constraint("Equal", 7, 9),
    Sketcher.Constraint("Equal", 11, 13),
    Sketcher.Constraint("Equal", 15, 17),
    Sketcher.Constraint("Equal", 19, 21),
    Sketcher.Constraint("Equal", 23, 25),
    Sketcher.Constraint("Equal", 27, 29),
    Sketcher.Constraint("DistanceX", 0, 2, 4, 2, Q("0.1 in")),
    Sketcher.Constraint("DistanceX", 4, 2, 8, 2, Q("0.1 in")),
    Sketcher.Constraint("DistanceX", 8, 2, 12, 2, Q("0.1 in")),
    Sketcher.Constraint("DistanceX", 12, 2, 16, 2, Q("0.1 in")),
    Sketcher.Constraint("DistanceX", 16, 2, 20, 2, Q("0.1 in")),
    Sketcher.Constraint("DistanceX", 20, 2, 24, 2, Q("0.1 in")),
    Sketcher.Constraint("DistanceX", 24, 2, 28, 2, Q("0.1 in")),
    Sketcher.Constraint("DistanceX", 1, 1, 1, 2, 0.805956),
    Sketcher.Constraint("DistanceY", 0, 2, 0, 1, 0.757944),
    Sketcher.Constraint("DistanceY", -1, 1, 0, 2, 1.793741),
    Sketcher.Constraint("DistanceX", -1, 1, 1, 2, 1.724048),
])
pocket6 = body.newObject("PartDesign::Pocket", "Pocket005")
pocket6.Profile = sketch7
pocket6.Length = Q("0.05 in")

# Sketch on XZ plane
sketch8 = body.newObject("Sketcher::SketchObject", "Sketch007")
sketch8.AttachmentSupport = (doc.getObject("XZ_Plane"), [""])
sketch8.MapMode = "FlatFace"
add_polygon(sketch8, [(3.61, -2.74), (3.61, -3.24), (4.05, -3.24), (4.05, -2.74)])  # lines 0-3
add_polygon(sketch8, [(1.07, -2.74), (1.07, -3.24), (1.51, -3.24), (1.51, -2.74)])  # lines 4-7
add_polygon(sketch8, [(6.15, -2.74), (6.15, -3.24), (6.59, -3.24), (6.59, -2.74)])  # lines 8-11
add_polygon(sketch8, [(8.69, -2.74), (8.69, -3.24), (9.13, -3.24), (9.13, -2.74)])  # lines 12-15
add_polygon(sketch8, [(11.23, -2.74), (11.23, -3.24), (11.67, -3.24), (11.67, -2.74)])  # lines 16-19
add_polygon(sketch8, [(13.77, -2.74), (13.77, -3.24), (14.21, -3.24), (14.21, -2.74)])  # lines 20-23
add_polygon(sketch8, [(16.31, -2.74), (16.31, -3.24), (16.75, -3.24), (16.75, -2.74)])  # lines 24-27
add_polygon(sketch8, [(18.85, -2.74), (18.85, -3.24), (19.29, -3.24), (19.29, -2.74)])  # lines 28-31
sketch8.addConstraint([
    Sketcher.Constraint("Vertical", 0),
    Sketcher.Constraint("Horizontal", 1),
    Sketcher.Constraint("Vertical", 2),
    Sketcher.Constraint("Horizontal", 3),
    Sketcher.Constraint("Vertical", 4),
    Sketcher.Constraint("Horizontal", 5),
    Sketcher.Constraint("Vertical", 6),
    Sketcher.Constraint("Horizontal", 7),
    Sketcher.Constraint("Vertical", 8),
    Sketcher.Constraint("Horizontal", 9),
    Sketcher.Constraint("Vertical", 10),
    Sketcher.Constraint("Horizontal", 11),
    Sketcher.Constraint("Vertical", 12),
    Sketcher.Constraint("Horizontal", 13),
    Sketcher.Constraint("Vertical", 14),
    Sketcher.Constraint("Horizontal", 15),
    Sketcher.Constraint("Vertical", 16),
    Sketcher.Constraint("Horizontal", 17),
    Sketcher.Constraint("Vertical", 18),
    Sketcher.Constraint("Horizontal", 19),
    Sketcher.Constraint("Vertical", 20),
    Sketcher.Constraint("Horizontal", 21),
    Sketcher.Constraint("Vertical", 22),
    Sketcher.Constraint("Horizontal", 23),
    Sketcher.Constraint("Vertical", 24),
    Sketcher.Constraint("Horizontal", 25),
    Sketcher.Constraint("Vertical", 26),
    Sketcher.Constraint("Horizontal", 27),
    Sketcher.Constraint("Vertical", 28),
    Sketcher.Constraint("Horizontal", 29),
    Sketcher.Constraint("Vertical", 30),
    Sketcher.Constraint("Horizontal", 31),
    Sketcher.Constraint("Horizontal", 1, 2, 4, 2),
    Sketcher.Constraint("Horizontal", 3, 2, 6, 2),
    Sketcher.Constraint("Horizontal", 5, 2, 8, 2),
    Sketcher.Constraint("Horizontal", 7, 2, 10, 2),
    Sketcher.Constraint("Horizontal", 9, 2, 12, 2),
    Sketcher.Constraint("Horizontal", 11, 2, 14, 2),
    Sketcher.Constraint("Horizontal", 13, 2, 16, 2),
    Sketcher.Constraint("Horizontal", 15, 2, 18, 2),
    Sketcher.Constraint("Horizontal", 17, 2, 20, 2),
    Sketcher.Constraint("Horizontal", 19, 2, 22, 2),
    Sketcher.Constraint("Horizontal", 21, 2, 24, 2),
    Sketcher.Constraint("Horizontal", 23, 2, 26, 2),
    Sketcher.Constraint("Horizontal", 25, 2, 28, 2),
    Sketcher.Constraint("Horizontal", 27, 2, 30, 2),
    Sketcher.Constraint("Equal", 3, 5),
    Sketcher.Constraint("Equal", 7, 9),
    Sketcher.Constraint("Equal", 11, 13),
    Sketcher.Constraint("Equal", 15, 17),
    Sketcher.Constraint("Equal", 19, 21),
    Sketcher.Constraint("Equal", 23, 25),
    Sketcher.Constraint("Equal", 27, 29),
    Sketcher.Constraint("DistanceX", 4, 2, 0, 2, Q("0.1 in")),
    Sketcher.Constraint("DistanceX", 0, 2, 8, 2, Q("0.1 in")),
    Sketcher.Constraint("DistanceX", 8, 2, 12, 2, Q("0.1 in")),
    Sketcher.Constraint("DistanceX", 12, 2, 16, 2, Q("0.1 in")),
    Sketcher.Constraint("DistanceX", 16, 2, 20, 2, Q("0.1 in")),
    Sketcher.Constraint("DistanceX", 20, 2, 24, 2, Q("0.1 in")),
    Sketcher.Constraint("DistanceX", 24, 2, 28, 2, Q("0.1 in")),
    Sketcher.Constraint("DistanceX", -1, 1, 1, 2, Q("0.1593001 in")),
    Sketcher.Constraint("DistanceX", 1, 1, 1, 2, 0.433382),
    Sketcher.Constraint("DistanceY", 0, 2, 0, 1, 0.491167),
    Sketcher.Constraint("DistanceY", 0, 2, -1, 1, 3.235829),
])
pad2 = body.newObject("PartDesign::Pad", "Pad001")
pad2.Profile = sketch8
pad2.Length = Q("0.075 in")

# Sketch on XZ plane
sketch9 = body.newObject("Sketcher::SketchObject", "Sketch008")
sketch9.AttachmentSupport = (doc.getObject("XZ_Plane"), [""])
sketch9.MapMode = "FlatFace"
sketch9.AttachmentOffset = App.Placement(V(0, 0, -0.34 * 25.4), App.Rotation())
add_polygon(sketch9, [(8, -8), (8, 3), (21, 3), (21, -8)])  # lines 0-3
sketch9.addConstraint([
    Sketcher.Constraint("Vertical", 0),
    Sketcher.Constraint("Horizontal", 1),
    Sketcher.Constraint("Vertical", 2),
    Sketcher.Constraint("Horizontal", 3),
    Sketcher.Constraint("DistanceY", 0, 1, 0, 2, 11.06858),
    Sketcher.Constraint("DistanceX", 1, 1, 1, 2, 13.835726),
    Sketcher.Constraint("DistanceY", 2, 2, -1, 1, 8.007218),
    Sketcher.Constraint("DistanceX", -1, 1, 0, 2, 7.556748),
])
pocket7 = body.newObject("PartDesign::Pocket", "Pocket006")
pocket7.Profile = sketch9
pocket7.Length = Q("1 in")
pocket7.Reversed = True

doc.recompute()
